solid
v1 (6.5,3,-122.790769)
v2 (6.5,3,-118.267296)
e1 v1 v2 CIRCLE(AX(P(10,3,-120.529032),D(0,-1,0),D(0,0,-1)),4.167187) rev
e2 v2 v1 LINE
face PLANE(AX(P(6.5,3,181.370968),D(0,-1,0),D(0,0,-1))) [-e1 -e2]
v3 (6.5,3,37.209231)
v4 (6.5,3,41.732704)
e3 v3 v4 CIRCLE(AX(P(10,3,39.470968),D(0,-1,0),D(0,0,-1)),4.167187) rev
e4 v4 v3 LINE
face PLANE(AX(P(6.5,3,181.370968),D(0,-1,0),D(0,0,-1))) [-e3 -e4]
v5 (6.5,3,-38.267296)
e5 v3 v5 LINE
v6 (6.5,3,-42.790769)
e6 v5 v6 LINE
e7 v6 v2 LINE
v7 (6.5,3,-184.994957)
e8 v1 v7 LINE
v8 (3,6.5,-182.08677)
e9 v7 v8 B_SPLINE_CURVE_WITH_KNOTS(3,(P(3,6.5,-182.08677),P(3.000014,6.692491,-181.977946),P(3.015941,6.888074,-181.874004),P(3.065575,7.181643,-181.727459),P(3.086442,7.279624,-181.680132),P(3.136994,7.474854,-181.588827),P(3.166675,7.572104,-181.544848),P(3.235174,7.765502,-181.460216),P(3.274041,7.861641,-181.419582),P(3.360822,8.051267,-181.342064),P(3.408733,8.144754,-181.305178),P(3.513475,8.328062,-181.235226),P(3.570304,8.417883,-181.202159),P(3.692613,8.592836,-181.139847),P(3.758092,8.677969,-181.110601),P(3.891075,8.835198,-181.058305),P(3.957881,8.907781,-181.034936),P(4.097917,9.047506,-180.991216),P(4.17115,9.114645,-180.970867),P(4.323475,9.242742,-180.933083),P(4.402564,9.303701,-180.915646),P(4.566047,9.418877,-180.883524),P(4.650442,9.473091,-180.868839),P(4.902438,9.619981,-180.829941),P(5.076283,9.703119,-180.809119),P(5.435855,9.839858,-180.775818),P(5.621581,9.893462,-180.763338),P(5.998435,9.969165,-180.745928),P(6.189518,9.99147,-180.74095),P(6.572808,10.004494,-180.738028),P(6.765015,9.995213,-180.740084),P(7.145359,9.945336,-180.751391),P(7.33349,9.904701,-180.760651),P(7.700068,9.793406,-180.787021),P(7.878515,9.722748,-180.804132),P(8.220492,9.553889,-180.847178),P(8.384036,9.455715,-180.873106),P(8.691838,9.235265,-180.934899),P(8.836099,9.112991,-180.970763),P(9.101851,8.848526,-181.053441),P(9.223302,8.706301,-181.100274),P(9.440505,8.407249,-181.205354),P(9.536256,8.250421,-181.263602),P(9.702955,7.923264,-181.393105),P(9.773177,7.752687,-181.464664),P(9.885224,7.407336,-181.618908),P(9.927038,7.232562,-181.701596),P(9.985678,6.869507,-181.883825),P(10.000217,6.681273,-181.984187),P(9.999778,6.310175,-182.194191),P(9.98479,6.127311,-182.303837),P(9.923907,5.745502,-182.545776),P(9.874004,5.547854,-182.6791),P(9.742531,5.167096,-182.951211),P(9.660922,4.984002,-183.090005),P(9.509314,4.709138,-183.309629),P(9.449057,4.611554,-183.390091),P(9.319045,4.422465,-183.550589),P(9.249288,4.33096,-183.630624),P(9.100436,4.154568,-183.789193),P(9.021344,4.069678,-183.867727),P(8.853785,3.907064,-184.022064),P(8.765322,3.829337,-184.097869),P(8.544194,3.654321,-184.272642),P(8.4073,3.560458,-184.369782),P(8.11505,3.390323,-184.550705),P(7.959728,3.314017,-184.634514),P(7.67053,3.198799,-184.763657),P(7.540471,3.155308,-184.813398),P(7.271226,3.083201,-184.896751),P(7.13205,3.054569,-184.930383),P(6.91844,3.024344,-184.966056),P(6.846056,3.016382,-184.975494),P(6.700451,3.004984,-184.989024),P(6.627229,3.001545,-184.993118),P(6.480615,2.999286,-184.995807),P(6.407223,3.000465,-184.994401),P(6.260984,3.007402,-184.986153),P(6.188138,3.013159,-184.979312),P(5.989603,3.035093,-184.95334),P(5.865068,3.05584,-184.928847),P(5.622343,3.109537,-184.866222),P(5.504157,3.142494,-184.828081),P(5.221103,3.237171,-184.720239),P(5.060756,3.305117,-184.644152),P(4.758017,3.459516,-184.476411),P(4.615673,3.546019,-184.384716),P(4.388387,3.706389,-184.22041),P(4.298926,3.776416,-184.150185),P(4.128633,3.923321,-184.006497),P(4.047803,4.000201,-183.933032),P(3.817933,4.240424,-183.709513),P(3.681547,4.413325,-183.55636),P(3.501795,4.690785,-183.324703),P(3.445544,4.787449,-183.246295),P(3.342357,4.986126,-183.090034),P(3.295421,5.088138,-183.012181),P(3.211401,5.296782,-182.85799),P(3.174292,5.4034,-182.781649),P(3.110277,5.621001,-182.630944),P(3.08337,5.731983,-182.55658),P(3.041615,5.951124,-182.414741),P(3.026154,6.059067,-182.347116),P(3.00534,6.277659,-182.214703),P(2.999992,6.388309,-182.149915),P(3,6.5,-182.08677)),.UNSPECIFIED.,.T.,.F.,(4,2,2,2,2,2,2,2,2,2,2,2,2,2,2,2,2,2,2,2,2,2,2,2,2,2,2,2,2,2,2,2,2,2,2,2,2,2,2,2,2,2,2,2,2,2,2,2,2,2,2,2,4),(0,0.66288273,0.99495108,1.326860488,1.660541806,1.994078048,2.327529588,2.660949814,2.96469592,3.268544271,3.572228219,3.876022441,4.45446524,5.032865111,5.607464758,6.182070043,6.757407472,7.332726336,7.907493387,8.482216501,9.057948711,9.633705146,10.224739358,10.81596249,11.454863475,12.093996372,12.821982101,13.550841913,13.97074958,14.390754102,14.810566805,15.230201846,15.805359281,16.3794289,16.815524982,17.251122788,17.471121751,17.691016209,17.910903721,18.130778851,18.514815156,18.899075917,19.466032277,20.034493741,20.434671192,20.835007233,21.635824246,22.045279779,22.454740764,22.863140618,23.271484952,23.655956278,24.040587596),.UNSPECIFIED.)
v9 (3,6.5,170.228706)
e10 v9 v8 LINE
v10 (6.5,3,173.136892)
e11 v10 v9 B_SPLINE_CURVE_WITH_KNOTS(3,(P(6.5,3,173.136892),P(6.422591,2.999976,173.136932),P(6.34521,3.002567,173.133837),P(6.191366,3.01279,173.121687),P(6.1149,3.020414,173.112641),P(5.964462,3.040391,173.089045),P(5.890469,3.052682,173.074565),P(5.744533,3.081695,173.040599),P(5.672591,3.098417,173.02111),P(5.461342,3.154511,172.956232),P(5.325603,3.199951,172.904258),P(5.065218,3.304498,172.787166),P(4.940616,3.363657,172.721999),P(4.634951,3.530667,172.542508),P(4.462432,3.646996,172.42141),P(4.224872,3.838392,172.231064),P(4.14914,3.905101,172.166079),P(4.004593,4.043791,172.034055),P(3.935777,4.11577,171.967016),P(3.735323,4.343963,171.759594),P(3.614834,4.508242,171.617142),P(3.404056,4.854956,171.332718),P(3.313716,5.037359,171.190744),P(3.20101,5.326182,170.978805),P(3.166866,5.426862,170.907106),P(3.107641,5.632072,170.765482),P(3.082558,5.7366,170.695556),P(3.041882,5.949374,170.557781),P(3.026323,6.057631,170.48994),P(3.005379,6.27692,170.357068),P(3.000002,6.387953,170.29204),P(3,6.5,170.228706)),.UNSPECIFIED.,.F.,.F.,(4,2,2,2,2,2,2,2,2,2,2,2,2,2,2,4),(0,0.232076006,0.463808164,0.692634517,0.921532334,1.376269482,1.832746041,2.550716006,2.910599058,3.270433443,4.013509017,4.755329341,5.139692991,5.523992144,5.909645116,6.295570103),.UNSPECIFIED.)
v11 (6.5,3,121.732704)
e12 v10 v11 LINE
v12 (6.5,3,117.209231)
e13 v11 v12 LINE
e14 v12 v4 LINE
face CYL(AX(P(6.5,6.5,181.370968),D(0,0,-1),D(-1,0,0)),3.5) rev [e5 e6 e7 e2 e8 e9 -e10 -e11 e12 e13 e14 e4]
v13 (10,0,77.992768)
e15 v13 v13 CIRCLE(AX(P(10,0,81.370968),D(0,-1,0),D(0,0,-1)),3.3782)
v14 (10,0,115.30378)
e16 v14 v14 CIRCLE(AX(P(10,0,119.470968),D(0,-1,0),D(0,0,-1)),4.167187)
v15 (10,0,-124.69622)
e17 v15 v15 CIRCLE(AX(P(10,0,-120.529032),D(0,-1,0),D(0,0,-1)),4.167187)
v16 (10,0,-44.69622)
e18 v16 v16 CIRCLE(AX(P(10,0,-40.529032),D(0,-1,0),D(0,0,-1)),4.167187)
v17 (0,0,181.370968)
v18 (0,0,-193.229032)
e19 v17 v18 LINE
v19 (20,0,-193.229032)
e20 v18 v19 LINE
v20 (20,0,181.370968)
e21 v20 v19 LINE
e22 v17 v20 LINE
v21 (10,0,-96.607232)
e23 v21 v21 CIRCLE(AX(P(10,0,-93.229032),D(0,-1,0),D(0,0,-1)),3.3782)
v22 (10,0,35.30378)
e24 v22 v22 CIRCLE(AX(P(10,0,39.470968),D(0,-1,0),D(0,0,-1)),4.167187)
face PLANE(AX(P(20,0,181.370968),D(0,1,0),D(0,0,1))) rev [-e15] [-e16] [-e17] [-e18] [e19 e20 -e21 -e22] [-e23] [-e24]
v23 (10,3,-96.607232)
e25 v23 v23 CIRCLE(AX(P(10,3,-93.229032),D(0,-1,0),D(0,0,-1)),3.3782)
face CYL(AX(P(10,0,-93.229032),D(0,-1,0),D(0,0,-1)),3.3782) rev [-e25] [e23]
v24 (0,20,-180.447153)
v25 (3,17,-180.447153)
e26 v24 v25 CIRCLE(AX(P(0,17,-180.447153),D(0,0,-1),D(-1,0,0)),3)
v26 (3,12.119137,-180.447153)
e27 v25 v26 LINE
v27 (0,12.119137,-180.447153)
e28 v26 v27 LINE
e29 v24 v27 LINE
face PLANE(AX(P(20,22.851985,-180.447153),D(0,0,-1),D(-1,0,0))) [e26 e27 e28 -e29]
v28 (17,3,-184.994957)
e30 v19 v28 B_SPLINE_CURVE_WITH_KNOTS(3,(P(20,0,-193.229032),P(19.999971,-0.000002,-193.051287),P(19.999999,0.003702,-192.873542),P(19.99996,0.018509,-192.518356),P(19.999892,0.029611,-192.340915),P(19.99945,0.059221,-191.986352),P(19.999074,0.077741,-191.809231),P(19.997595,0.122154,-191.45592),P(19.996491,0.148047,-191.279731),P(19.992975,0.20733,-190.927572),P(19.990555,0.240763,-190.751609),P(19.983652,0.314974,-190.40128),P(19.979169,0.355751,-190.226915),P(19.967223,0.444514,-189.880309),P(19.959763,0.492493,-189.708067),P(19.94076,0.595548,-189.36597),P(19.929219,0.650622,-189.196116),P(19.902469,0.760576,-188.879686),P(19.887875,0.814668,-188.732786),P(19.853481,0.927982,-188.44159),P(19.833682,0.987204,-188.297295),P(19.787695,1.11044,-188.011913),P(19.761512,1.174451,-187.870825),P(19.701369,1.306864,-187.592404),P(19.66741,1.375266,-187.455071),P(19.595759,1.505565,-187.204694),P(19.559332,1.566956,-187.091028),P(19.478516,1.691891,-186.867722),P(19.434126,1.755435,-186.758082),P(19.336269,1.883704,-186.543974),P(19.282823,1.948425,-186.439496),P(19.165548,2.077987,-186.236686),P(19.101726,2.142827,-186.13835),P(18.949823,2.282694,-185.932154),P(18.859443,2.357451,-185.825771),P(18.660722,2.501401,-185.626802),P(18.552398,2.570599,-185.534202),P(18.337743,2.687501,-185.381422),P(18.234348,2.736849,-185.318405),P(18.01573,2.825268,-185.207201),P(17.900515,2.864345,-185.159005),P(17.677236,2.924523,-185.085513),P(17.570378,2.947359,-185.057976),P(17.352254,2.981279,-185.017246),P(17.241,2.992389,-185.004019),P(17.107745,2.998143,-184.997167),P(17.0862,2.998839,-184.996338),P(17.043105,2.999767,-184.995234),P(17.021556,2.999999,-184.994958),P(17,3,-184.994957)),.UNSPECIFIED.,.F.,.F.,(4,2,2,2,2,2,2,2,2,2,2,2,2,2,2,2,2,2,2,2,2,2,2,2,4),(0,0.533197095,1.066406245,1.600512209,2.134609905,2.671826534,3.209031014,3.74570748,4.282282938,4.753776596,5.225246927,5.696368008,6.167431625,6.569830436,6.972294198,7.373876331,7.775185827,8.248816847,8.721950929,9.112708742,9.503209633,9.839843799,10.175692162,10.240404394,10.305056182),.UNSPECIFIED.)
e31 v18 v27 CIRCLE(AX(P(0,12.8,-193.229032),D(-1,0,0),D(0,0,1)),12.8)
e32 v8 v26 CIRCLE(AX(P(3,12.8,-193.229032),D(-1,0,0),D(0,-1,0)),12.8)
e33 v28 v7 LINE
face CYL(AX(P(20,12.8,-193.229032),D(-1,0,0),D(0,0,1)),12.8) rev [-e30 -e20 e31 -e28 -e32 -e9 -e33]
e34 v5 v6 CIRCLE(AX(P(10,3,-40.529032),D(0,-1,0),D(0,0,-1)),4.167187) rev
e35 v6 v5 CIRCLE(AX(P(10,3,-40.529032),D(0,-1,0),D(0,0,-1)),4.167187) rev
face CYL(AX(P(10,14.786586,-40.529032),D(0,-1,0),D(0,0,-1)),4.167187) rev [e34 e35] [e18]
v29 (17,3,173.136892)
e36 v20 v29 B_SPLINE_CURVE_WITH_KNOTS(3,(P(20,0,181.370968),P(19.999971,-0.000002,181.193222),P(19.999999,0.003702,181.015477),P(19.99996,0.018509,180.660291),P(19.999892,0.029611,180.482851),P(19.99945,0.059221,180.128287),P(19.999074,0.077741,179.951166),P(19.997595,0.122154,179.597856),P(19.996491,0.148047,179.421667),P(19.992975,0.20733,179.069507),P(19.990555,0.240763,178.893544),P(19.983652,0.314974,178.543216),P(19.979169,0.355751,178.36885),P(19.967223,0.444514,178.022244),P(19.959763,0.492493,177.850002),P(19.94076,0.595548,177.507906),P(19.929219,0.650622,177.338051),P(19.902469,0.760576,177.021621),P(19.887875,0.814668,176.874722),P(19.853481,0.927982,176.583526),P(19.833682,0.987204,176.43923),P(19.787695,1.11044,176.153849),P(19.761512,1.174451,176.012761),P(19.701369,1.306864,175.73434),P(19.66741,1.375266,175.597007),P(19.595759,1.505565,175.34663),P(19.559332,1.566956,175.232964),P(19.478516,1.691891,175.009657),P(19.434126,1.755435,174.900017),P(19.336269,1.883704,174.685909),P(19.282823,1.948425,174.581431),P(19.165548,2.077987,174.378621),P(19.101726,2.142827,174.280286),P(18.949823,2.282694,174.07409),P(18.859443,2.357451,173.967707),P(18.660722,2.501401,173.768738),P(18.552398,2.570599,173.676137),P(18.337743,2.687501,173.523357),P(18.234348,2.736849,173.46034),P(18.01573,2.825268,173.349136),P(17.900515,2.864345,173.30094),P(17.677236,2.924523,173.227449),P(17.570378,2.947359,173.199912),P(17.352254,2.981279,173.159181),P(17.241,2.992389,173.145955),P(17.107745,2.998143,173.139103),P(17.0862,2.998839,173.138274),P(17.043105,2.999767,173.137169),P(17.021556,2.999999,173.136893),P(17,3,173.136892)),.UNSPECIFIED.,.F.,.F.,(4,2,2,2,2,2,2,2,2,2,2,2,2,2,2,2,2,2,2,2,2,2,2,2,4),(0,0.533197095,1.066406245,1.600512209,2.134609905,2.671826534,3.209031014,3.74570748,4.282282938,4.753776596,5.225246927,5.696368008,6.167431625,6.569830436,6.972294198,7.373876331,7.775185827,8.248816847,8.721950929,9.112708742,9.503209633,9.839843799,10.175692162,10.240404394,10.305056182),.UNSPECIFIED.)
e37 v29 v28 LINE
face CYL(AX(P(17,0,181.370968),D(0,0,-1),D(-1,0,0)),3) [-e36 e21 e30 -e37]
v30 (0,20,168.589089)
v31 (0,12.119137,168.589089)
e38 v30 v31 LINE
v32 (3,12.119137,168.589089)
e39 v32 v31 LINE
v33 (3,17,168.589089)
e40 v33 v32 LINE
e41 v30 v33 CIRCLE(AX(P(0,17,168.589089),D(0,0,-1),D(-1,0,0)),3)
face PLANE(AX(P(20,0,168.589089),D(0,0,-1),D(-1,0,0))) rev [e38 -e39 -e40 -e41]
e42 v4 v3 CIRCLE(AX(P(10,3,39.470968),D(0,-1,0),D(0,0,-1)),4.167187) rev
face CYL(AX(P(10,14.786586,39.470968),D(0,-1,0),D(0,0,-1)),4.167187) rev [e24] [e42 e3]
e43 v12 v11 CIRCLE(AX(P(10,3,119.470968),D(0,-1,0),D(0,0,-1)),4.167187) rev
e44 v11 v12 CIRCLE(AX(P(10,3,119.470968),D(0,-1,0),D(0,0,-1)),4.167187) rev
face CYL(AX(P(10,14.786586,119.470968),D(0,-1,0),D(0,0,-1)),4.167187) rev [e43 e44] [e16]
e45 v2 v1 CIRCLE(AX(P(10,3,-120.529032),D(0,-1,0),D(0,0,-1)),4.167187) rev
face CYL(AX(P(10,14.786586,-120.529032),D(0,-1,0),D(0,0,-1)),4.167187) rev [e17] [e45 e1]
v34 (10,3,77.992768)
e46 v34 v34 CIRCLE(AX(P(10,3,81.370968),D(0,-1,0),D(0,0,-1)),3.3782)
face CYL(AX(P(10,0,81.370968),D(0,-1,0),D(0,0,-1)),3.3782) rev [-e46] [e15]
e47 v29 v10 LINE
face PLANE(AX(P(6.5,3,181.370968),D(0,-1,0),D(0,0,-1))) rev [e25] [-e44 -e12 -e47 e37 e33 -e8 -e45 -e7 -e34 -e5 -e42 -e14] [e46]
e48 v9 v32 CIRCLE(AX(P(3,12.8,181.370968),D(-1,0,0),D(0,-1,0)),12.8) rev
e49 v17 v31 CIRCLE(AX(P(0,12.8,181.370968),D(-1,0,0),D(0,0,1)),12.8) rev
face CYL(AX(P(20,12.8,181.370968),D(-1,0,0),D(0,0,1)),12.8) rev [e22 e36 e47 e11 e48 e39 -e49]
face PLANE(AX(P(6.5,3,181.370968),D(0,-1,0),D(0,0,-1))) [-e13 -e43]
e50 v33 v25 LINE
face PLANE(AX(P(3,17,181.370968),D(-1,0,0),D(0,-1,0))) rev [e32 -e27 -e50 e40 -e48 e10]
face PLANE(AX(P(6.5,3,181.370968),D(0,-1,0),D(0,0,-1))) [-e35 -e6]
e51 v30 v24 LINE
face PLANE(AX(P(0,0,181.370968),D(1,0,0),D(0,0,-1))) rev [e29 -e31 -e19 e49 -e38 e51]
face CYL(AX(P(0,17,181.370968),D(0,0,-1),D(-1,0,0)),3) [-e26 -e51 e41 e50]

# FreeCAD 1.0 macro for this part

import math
import FreeCAD as App
import Part
import Sketcher
Q = App.Units.Quantity

doc = App.newDocument("Part")
params = doc.addObject("Spreadsheet::Sheet", "Params")
for row, (alias, value) in enumerate([
    ("sketch1_radius", "3 mm"),
    ("sketch1_radius2", "3.5 mm"),
    ("sketch1_width", "20 mm"),
    ("pad1_length", "374.6 mm"),
    ("sketch2_radius", "12.8 mm"),
    ("sketch2_width", "20 mm"),
    ("hole_diameter", "6.7564 mm"),
    ("pocket2_length", "3 mm"),
], start=1):
    params.set(f"A{row}", alias)
    params.set(f"B{row}", "=" + value)
    params.setAlias(f"B{row}", alias)

body = doc.addObject("PartDesign::Body", "Body")

sketch1 = body.newObject("Sketcher::SketchObject", "Sketch")
sketch1.AttachmentSupport = (doc.getObject("XY_Plane"), [""])
sketch1.MapMode = "FlatFace"
sketch1.AttachmentOffset = App.Placement(App.Vector(0, 0, -193.229032), App.Rotation())
sketch1.addGeometry(Part.LineSegment(App.Vector(0, 20, 0), App.Vector(0, 0, 0)), False)
sketch1.addGeometry(Part.LineSegment(App.Vector(0, 0, 0), App.Vector(20, 0, 0)), False)
sketch1.addGeometry(Part.ArcOfCircle(Part.Circle(App.Vector(17, 0, 0), App.Vector(0, 0, 1), 3), math.radians(0), math.radians(90)), False)
sketch1.addGeometry(Part.LineSegment(App.Vector(17, 3, 0), App.Vector(6.5, 3, 0)), False)
sketch1.addGeometry(Part.ArcOfCircle(Part.Circle(App.Vector(6.5, 6.5, 0), App.Vector(0, 0, 1), 3.5), math.radians(-180), math.radians(-90)), False)
sketch1.addGeometry(Part.LineSegment(App.Vector(3, 6.5, 0), App.Vector(3, 17, 0)), False)
sketch1.addGeometry(Part.ArcOfCircle(Part.Circle(App.Vector(0, 17, 0), App.Vector(0, 0, 1), 3), math.radians(0), math.radians(90)), False)
sketch1.addConstraint(Sketcher.Constraint("Coincident", 0, 2, 1, 1))
sketch1.addConstraint(Sketcher.Constraint("Coincident", 1, 2, 2, 1))
sketch1.addConstraint(Sketcher.Constraint("Tangent", 2, 2, 3, 1))
sketch1.addConstraint(Sketcher.Constraint("Tangent", 3, 2, 4, 2))
sketch1.addConstraint(Sketcher.Constraint("Tangent", 4, 1, 5, 1))
sketch1.addConstraint(Sketcher.Constraint("Tangent", 5, 2, 6, 1))
sketch1.addConstraint(Sketcher.Constraint("Coincident", 6, 2, 0, 1))
sketch1.addConstraint(Sketcher.Constraint("Vertical", 0))
sketch1.addConstraint(Sketcher.Constraint("Horizontal", 1))
sketch1.addConstraint(Sketcher.Constraint("Horizontal", 3))
sketch1.addConstraint(Sketcher.Constraint("Vertical", 5))
sketch1.addConstraint(Sketcher.Constraint("Coincident", 0, 2, -1, 1))
sketch1.addConstraint(Sketcher.Constraint("Equal", 2, 6))
sketch1.addConstraint(Sketcher.Constraint("PointOnObject", 2, 3, -1))
sketch1.addConstraint(Sketcher.Constraint("PointOnObject", 6, 3, -2))
sketch1.addConstraint(Sketcher.Constraint("Equal", 1, 0))
sketch1.addConstraint(Sketcher.Constraint("Radius", 2, Q("3 mm")))
sketch1.addConstraint(Sketcher.Constraint("Radius", 4, Q("3.5 mm")))
sketch1.addConstraint(Sketcher.Constraint("DistanceX", 1, 1, 1, 2, Q("20 mm")))
sketch1.setExpression("Constraints[16]", "Params.sketch1_radius")
sketch1.setExpression("Constraints[17]", "Params.sketch1_radius2")
sketch1.setExpression("Constraints[18]", "Params.sketch1_width")
pad1 = body.newObject("PartDesign::Pad", "Pad")
pad1.Profile = sketch1
pad1.setExpression("Length", "Params.pad1_length")

sketch2 = body.newObject("Sketcher::SketchObject", "Sketch001")
sketch2.AttachmentSupport = (doc.getObject("YZ_Plane"), [""])
sketch2.MapMode = "FlatFace"
sketch2.addGeometry(Part.LineSegment(App.Vector(12.119137, 168.589089, 0), App.Vector(20, 168.589089, 0)), False)
sketch2.addGeometry(Part.LineSegment(App.Vector(20, 168.589089, 0), App.Vector(20, 181.370968, 0)), False)
sketch2.addGeometry(Part.LineSegment(App.Vector(20, 181.370968, 0), App.Vector(0, 181.370968, 0)), False)
sketch2.addGeometry(Part.ArcOfCircle(Part.Circle(App.Vector(12.8, 181.370968, 0), App.Vector(0, 0, 1), 12.8), math.radians(180), math.radians(266.95086)), False)
sketch2.addGeometry(Part.LineSegment(App.Vector(22.851985, -180.447153, 0), App.Vector(12.119137, -180.447153, 0)), False)
sketch2.addGeometry(Part.ArcOfCircle(Part.Circle(App.Vector(12.8, -193.229032, 0), App.Vector(0, 0, 1), 12.8), math.radians(93.04914), math.radians(180)), False)
sketch2.addGeometry(Part.LineSegment(App.Vector(0, -193.229032, 0), App.Vector(0, -196.975216, 0)), False)
sketch2.addGeometry(Part.LineSegment(App.Vector(0, -196.975216, 0), App.Vector(22.851985, -196.975216, 0)), False)
sketch2.addGeometry(Part.LineSegment(App.Vector(22.851985, -196.975216, 0), App.Vector(22.851985, -180.447153, 0)), False)
sketch2.addConstraint(Sketcher.Constraint("Coincident", 0, 2, 1, 1))
sketch2.addConstraint(Sketcher.Constraint("Coincident", 1, 2, 2, 1))
sketch2.addConstraint(Sketcher.Constraint("Coincident", 2, 2, 3, 1))
sketch2.addConstraint(Sketcher.Constraint("Coincident", 3, 2, 0, 1))
sketch2.addConstraint(Sketcher.Constraint("Coincident", 4, 2, 5, 1))
sketch2.addConstraint(Sketcher.Constraint("Tangent", 5, 2, 6, 1))
sketch2.addConstraint(Sketcher.Constraint("Coincident", 6, 2, 7, 1))
sketch2.addConstraint(Sketcher.Constraint("Coincident", 7, 2, 8, 1))
sketch2.addConstraint(Sketcher.Constraint("Coincident", 8, 2, 4, 1))
sketch2.addConstraint(Sketcher.Constraint("Horizontal", 0))
sketch2.addConstraint(Sketcher.Constraint("Vertical", 1))
sketch2.addConstraint(Sketcher.Constraint("Horizontal", 2))
sketch2.addConstraint(Sketcher.Constraint("Horizontal", 4))
sketch2.addConstraint(Sketcher.Constraint("Vertical", 6))
sketch2.addConstraint(Sketcher.Constraint("Horizontal", 7))
sketch2.addConstraint(Sketcher.Constraint("Vertical", 8))
sketch2.addConstraint(Sketcher.Constraint("Equal", 3, 5))
sketch2.addConstraint(Sketcher.Constraint("PointOnObject", 2, 2, -2))
sketch2.addConstraint(Sketcher.Constraint("PointOnObject", 5, 2, -2))
sketch2.addConstraint(Sketcher.Constraint("Horizontal", 3, 3, 1, 2))
sketch2.addConstraint(Sketcher.Constraint("Vertical", 3, 2, 4, 2))
sketch2.addConstraint(Sketcher.Constraint("Radius", 3, Q("12.8 mm")))
sketch2.addConstraint(Sketcher.Constraint("DistanceX", 2, 2, 2, 1, Q("20 mm")))
sketch2.addConstraint(Sketcher.Constraint("DistanceY", 5, 3, 3, 3, Q("374.6 mm")))
sketch2.addConstraint(Sketcher.Constraint("DistanceY", 1, 1, 1, 2, Q("12.781879 mm")))
sketch2.addConstraint(Sketcher.Constraint("DistanceX", 4, 2, 4, 1, Q("10.732848 mm")))
sketch2.addConstraint(Sketcher.Constraint("DistanceY", 6, 2, 6, 1, Q("3.746184 mm")))
sketch2.addConstraint(Sketcher.Constraint("DistanceY", -1, 1, 0, 2, Q("168.589089 mm")))
sketch2.setExpression("Constraints[21]", "Params.sketch2_radius")
sketch2.setExpression("Constraints[22]", "Params.sketch2_width")
pocket1 = body.newObject("PartDesign::Pocket", "Pocket")
pocket1.Profile = sketch2
pocket1.Type = "ThroughAll"
pocket1.Reversed = True

sketch3 = body.newObject("Sketcher::SketchObject", "Sketch002")
sketch3.AttachmentSupport = (doc.getObject("XZ_Plane"), [""])
sketch3.MapMode = "FlatFace"
sketch3.addGeometry(Part.Circle(App.Vector(10, 81.370968, 0), App.Vector(0, 0, 1), 3.3782), False)
sketch3.addGeometry(Part.Circle(App.Vector(10, -93.229032, 0), App.Vector(0, 0, 1), 3.3782), False)
sketch3.addConstraint(Sketcher.Constraint("Equal", 0, 1))
sketch3.addConstraint(Sketcher.Constraint("Vertical", 0, 3, 1, 3))
sketch3.addConstraint(Sketcher.Constraint("DistanceX", -1, 1, 0, 3, Q("10 mm")))
sketch3.addConstraint(Sketcher.Constraint("Diameter", 0, Q("6.7564 mm")))
sketch3.addConstraint(Sketcher.Constraint("DistanceY", 1, 3, 0, 3, Q("174.6 mm")))
sketch3.addConstraint(Sketcher.Constraint("DistanceY", -1, 1, 0, 3, Q("81.370968 mm")))
doc.recompute()
hole = body.newObject("PartDesign::Hole", "Hole")
hole.Profile = sketch3
hole.ThreadType = "None"
hole.setExpression("Diameter", "Params.hole_diameter")
hole.DepthType = "ThroughAll"

sketch4 = body.newObject("Sketcher::SketchObject", "Sketch003")
sketch4.AttachmentSupport = (doc.getObject("XZ_Plane"), [""])
sketch4.MapMode = "FlatFace"
sketch4.addGeometry(Part.Circle(App.Vector(10, -40.529032, 0), App.Vector(0, 0, 1), 4.167187), False)
sketch4.addGeometry(Part.Circle(App.Vector(10, 39.470968, 0), App.Vector(0, 0, 1), 4.167187), False)
sketch4.addGeometry(Part.Circle(App.Vector(10, 119.470968, 0), App.Vector(0, 0, 1), 4.167187), False)
sketch4.addGeometry(Part.Circle(App.Vector(10, -120.529032, 0), App.Vector(0, 0, 1), 4.167187), False)
sketch4.addConstraint(Sketcher.Constraint("Equal", 0, 1))
sketch4.addConstraint(Sketcher.Constraint("Equal", 1, 2))
sketch4.addConstraint(Sketcher.Constraint("Equal", 2, 3))
sketch4.addConstraint(Sketcher.Constraint("Vertical", 0, 3, 1, 3))
sketch4.addConstraint(Sketcher.Constraint("Vertical", 1, 3, 2, 3))
sketch4.addConstraint(Sketcher.Constraint("Vertical", 2, 3, 3, 3))
sketch4.addConstraint(Sketcher.Constraint("DistanceX", -1, 1, 0, 3, Q("10 mm")))
sketch4.addConstraint(Sketcher.Constraint("DistanceY", 0, 3, 1, 3, Q("80 mm")))
sketch4.addConstraint(Sketcher.Constraint("DistanceY", 1, 3, 2, 3, Q("80 mm")))
sketch4.addConstraint(Sketcher.Constraint("DistanceY", 3, 3, 0, 3, Q("80 mm")))
sketch4.addConstraint(Sketcher.Constraint("Diameter", 0, Q("8.334375 mm")))
sketch4.addConstraint(Sketcher.Constraint("DistanceY", 0, 3, -1, 1, Q("40.529032 mm")))
pocket2 = body.newObject("PartDesign::Pocket", "Pocket001")
pocket2.Profile = sketch4
pocket2.setExpression("Length", "Params.pocket2_length")

doc.recompute()
